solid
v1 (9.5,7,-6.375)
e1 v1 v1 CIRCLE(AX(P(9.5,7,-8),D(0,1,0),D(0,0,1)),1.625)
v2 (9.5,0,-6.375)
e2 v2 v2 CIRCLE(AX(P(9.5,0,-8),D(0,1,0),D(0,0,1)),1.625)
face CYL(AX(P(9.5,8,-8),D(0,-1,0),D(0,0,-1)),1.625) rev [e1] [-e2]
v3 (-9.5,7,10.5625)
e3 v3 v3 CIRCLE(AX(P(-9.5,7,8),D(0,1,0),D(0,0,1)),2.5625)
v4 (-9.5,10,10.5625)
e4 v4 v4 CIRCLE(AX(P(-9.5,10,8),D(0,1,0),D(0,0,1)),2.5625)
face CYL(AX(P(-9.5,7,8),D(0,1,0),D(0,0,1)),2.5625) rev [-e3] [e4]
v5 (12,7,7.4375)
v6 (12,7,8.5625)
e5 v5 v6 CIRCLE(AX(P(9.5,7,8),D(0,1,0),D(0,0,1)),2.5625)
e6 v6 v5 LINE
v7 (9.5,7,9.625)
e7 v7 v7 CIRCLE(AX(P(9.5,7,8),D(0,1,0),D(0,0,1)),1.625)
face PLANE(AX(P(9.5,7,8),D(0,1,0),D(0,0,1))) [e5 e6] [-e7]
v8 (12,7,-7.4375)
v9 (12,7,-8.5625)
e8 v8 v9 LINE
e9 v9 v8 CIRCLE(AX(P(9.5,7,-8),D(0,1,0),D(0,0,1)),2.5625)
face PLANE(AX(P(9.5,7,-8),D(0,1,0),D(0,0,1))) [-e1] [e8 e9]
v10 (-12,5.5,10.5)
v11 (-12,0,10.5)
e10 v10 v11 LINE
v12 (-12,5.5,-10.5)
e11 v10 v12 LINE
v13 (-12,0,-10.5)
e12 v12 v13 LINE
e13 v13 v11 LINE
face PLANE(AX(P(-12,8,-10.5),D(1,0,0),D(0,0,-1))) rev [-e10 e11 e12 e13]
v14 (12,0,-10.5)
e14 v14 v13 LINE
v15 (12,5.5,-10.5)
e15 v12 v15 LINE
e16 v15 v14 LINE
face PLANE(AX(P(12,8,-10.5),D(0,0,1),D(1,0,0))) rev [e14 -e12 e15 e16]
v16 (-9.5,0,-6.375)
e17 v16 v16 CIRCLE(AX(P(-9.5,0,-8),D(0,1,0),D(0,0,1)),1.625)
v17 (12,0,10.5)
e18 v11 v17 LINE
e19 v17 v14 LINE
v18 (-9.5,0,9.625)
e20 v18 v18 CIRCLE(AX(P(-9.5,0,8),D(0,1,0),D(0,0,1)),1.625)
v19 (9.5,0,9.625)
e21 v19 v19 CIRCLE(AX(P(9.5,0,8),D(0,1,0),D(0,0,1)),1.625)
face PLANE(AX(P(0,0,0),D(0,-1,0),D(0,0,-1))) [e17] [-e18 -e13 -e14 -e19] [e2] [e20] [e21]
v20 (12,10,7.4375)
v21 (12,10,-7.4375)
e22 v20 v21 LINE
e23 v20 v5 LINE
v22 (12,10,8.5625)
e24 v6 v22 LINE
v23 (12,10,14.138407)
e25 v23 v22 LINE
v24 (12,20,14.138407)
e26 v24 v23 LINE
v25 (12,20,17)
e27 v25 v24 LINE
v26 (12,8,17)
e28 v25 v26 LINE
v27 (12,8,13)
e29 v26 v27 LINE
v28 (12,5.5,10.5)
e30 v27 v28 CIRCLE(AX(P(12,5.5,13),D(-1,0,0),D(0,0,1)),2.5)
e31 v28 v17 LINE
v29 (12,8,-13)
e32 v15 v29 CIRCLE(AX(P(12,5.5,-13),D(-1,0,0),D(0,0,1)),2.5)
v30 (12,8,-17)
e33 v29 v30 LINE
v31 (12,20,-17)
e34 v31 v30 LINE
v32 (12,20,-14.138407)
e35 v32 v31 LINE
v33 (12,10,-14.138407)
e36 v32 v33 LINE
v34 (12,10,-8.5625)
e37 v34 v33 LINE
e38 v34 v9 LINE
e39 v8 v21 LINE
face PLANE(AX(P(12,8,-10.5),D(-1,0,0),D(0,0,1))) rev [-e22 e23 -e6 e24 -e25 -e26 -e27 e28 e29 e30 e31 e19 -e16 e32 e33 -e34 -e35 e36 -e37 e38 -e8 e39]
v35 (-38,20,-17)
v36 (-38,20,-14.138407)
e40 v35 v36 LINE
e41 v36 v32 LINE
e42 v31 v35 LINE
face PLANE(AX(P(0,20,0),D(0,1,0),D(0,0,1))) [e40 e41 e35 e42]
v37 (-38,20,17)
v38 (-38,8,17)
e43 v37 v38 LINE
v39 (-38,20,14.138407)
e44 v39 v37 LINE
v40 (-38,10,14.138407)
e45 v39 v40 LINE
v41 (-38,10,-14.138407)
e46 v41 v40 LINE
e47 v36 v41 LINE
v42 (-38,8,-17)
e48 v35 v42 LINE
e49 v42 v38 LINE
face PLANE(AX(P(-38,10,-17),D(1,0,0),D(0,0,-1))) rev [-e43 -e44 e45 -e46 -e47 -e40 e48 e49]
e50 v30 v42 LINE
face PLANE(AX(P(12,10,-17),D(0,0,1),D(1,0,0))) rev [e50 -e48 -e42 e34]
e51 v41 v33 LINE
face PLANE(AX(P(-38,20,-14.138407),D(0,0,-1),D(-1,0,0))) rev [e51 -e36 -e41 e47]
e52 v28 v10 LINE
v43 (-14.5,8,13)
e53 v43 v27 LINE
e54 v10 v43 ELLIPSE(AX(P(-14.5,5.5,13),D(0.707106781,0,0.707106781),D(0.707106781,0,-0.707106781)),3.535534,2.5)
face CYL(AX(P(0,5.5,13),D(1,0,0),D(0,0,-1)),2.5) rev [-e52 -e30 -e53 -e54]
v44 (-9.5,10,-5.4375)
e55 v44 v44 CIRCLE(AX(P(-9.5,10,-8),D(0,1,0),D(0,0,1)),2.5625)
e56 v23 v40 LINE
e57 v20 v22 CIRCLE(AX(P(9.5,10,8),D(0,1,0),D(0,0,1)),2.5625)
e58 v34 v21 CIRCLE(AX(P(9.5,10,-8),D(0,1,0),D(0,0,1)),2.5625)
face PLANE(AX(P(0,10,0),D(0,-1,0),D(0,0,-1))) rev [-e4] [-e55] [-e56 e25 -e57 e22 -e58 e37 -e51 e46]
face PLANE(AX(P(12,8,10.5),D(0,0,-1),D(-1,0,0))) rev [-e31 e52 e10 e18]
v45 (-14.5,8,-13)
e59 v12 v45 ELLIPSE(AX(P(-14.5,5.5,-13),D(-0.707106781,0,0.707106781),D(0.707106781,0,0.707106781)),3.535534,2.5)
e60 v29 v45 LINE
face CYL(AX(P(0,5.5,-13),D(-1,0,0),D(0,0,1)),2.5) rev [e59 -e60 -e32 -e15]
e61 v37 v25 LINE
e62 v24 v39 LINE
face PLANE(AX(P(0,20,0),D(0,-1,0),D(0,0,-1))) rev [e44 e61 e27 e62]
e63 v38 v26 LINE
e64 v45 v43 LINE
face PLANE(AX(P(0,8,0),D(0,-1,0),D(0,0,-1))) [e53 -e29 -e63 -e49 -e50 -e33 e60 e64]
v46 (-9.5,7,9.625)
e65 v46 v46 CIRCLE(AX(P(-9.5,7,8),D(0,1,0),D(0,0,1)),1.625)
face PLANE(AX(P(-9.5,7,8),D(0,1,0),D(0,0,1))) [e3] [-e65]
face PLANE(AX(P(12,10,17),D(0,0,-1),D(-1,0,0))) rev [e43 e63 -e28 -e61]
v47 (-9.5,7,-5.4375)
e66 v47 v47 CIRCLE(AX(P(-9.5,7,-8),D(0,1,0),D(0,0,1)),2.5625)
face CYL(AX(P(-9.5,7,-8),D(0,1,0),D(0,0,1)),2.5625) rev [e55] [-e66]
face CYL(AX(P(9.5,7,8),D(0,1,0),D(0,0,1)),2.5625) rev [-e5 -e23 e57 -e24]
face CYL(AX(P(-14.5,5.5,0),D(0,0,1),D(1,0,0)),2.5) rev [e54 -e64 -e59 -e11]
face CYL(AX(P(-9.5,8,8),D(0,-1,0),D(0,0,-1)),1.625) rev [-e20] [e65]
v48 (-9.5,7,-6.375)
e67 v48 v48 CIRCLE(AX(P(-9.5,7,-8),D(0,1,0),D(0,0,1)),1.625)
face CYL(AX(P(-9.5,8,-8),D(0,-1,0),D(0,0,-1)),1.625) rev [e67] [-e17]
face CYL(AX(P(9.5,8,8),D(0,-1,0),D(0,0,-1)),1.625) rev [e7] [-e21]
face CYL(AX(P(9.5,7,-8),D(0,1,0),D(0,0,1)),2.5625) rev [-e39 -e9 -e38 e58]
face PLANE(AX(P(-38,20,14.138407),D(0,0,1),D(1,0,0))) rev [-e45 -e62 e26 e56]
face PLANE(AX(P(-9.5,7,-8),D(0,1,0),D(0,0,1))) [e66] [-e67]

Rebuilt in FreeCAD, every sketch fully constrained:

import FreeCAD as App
import Part
import Sketcher

V = App.Vector
Q = App.Units.Quantity


def edges_at(feature, points):
    """Names of the edges that pass closest to the given points."""
    edges = feature.Shape.Edges
    near = lambda p: min(range(len(edges)), key=lambda i: edges[i].distToShape(Part.Vertex(*p))[0])
    return sorted({f"Edge{near(p) + 1}" for p in points})


def add_polygon(sketch, points):
    """Adds a closed chain of lines whose ends are joined by coincident constraints."""
    first, n = sketch.GeometryCount, len(points)
    for a, b in zip(points, points[1:] + points[:1]):
        sketch.addGeometry(Part.LineSegment(App.Vector(*a, 0), App.Vector(*b, 0)), False)
    for i in range(n):
        sketch.addConstraint(Sketcher.Constraint("Coincident", first + i, 2, first + (i + 1) % n, 1))

doc = App.newDocument("Part")
body = doc.addObject("PartDesign::Body", "Body")

# Sketch on XZ plane
sketch1 = body.newObject("Sketcher::SketchObject", "Sketch")
sketch1.AttachmentSupport = (doc.getObject("XZ_Plane"), [""])
sketch1.MapMode = "FlatFace"
add_polygon(sketch1, [(-12, -10.5), (-12, 10.5), (12, 10.5), (12, -10.5)])  # lines 0-3
sketch1.addGeometry(Part.Circle(V(-9.5, 8, 0), V(0, 0, 1), 1.6), False)  # 4
sketch1.addGeometry(Part.Circle(V(9.5, 8, 0), V(0, 0, 1), 1.6), False)  # 5
sketch1.addGeometry(Part.Circle(V(-9.5, -8, 0), V(0, 0, 1), 1.6), False)  # 6
sketch1.addGeometry(Part.Circle(V(9.5, -8, 0), V(0, 0, 1), 1.6), False)  # 7
sketch1.addConstraint(Sketcher.Constraint("Vertical", 0))
sketch1.addConstraint(Sketcher.Constraint("Horizontal", 1))
sketch1.addConstraint(Sketcher.Constraint("Vertical", 2))
sketch1.addConstraint(Sketcher.Constraint("Horizontal", 3))
sketch1.addConstraint(Sketcher.Constraint("Equal", 4, 5))
sketch1.addConstraint(Sketcher.Constraint("Equal", 5, 6))
sketch1.addConstraint(Sketcher.Constraint("Equal", 6, 7))
sketch1.addConstraint(Sketcher.Constraint("Symmetric", 5, 3, 6, 3, -1, 1))
sketch1.addConstraint(Sketcher.Constraint("Symmetric", 4, 3, 7, 3, -1, 1))
sketch1.addConstraint(Sketcher.Constraint("Symmetric", 0, 2, 2, 2, -1, 1))
sketch1.addConstraint(Sketcher.Constraint("Symmetric", 4, 3, 5, 3, -2))
sketch1.addConstraint(Sketcher.Constraint("Diameter", 4, Q("3.25 mm")))
sketch1.addConstraint(Sketcher.Constraint("DistanceX", 1, 1, 1, 2, Q("24 mm")))
sketch1.addConstraint(Sketcher.Constraint("DistanceY", 0, 1, 0, 2, Q("21 mm")))
sketch1.addConstraint(Sketcher.Constraint("DistanceY", -1, 1, 4, 3, Q("8 mm")))
sketch1.addConstraint(Sketcher.Constraint("DistanceX", 4, 3, 5, 3, Q("19 mm")))
pad1 = body.newObject("PartDesign::Pad", "Pad")
pad1.Profile = sketch1
pad1.Length = 8
pad1.Reversed = True

# Sketch on XZ plane
sketch2 = body.newObject("Sketcher::SketchObject", "Sketch001")
sketch2.AttachmentSupport = (doc.getObject("XZ_Plane"), [""])
sketch2.MapMode = "FlatFace"
sketch2.AttachmentOffset = App.Placement(V(0, 0, -8), App.Rotation())
add_polygon(sketch2, [(-38, -17), (-38, 17), (12, 17), (12, -17)])  # lines 0-3
sketch2.addGeometry(Part.Circle(V(-9.5, 8, 0), V(0, 0, 1), 1.6), False)  # 4
sketch2.addGeometry(Part.Circle(V(9.5, 8, 0), V(0, 0, 1), 1.6), False)  # 5
sketch2.addGeometry(Part.Circle(V(-9.5, -8, 0), V(0, 0, 1), 1.6), False)  # 6
sketch2.addGeometry(Part.Circle(V(9.5, -8, 0), V(0, 0, 1), 1.6), False)  # 7
sketch2.addConstraint(Sketcher.Constraint("Vertical", 0))
sketch2.addConstraint(Sketcher.Constraint("Horizontal", 1))
sketch2.addConstraint(Sketcher.Constraint("Vertical", 2))
sketch2.addConstraint(Sketcher.Constraint("Horizontal", 3))
sketch2.addConstraint(Sketcher.Constraint("Equal", 4, 5))
sketch2.addConstraint(Sketcher.Constraint("Equal", 5, 6))
sketch2.addConstraint(Sketcher.Constraint("Equal", 6, 7))
sketch2.addConstraint(Sketcher.Constraint("Symmetric", 5, 3, 6, 3, -1, 1))
sketch2.addConstraint(Sketcher.Constraint("Symmetric", 4, 3, 7, 3, -1, 1))
sketch2.addConstraint(Sketcher.Constraint("Symmetric", 4, 3, 5, 3, -2))
sketch2.addConstraint(Sketcher.Constraint("Diameter", 4, Q("3.25 mm")))
sketch2.addConstraint(Sketcher.Constraint("DistanceX", 1, 1, 1, 2, Q("50 mm")))
sketch2.addConstraint(Sketcher.Constraint("DistanceY", 0, 1, 0, 2, Q("34 mm")))
sketch2.addConstraint(Sketcher.Constraint("DistanceY", -1, 1, 4, 3, Q("8 mm")))
sketch2.addConstraint(Sketcher.Constraint("DistanceX", 0, 2, -1, 1, Q("38 mm")))
sketch2.addConstraint(Sketcher.Constraint("DistanceY", -1, 1, 0, 2, Q("17 mm")))
sketch2.addConstraint(Sketcher.Constraint("DistanceX", 4, 3, 5, 3, Q("19 mm")))
pad2 = body.newObject("PartDesign::Pad", "Pad001")
pad2.Profile = sketch2
pad2.Length = 2
pad2.Reversed = True
doc.recompute()

fillet = body.newObject("PartDesign::Fillet", "Fillet")
fillet.Base = (pad2, edges_at(pad2, [(0, 8, -10.5), (-12, 8, 0), (0, 8, 10.5)]))
fillet.Radius = 2.5

# Sketch on XZ plane
sketch3 = body.newObject("Sketcher::SketchObject", "Sketch002")
sketch3.AttachmentSupport = (doc.getObject("XZ_Plane"), [""])
sketch3.MapMode = "FlatFace"
sketch3.AttachmentOffset = App.Placement(V(0, 0, -10), App.Rotation())
add_polygon(sketch3, [(-38, -17), (-38, -14.1), (12, -14.1), (12, -17)])  # lines 0-3
add_polygon(sketch3, [(-38, 14.1), (-38, 17), (12, 17), (12, 14.1)])  # lines 4-7
sketch3.addConstraint(Sketcher.Constraint("Vertical", 0))
sketch3.addConstraint(Sketcher.Constraint("Horizontal", 1))
sketch3.addConstraint(Sketcher.Constraint("Vertical", 2))
sketch3.addConstraint(Sketcher.Constraint("Horizontal", 3))
sketch3.addConstraint(Sketcher.Constraint("Vertical", 4))
sketch3.addConstraint(Sketcher.Constraint("Horizontal", 5))
sketch3.addConstraint(Sketcher.Constraint("Vertical", 6))
sketch3.addConstraint(Sketcher.Constraint("Horizontal", 7))
sketch3.addConstraint(Sketcher.Constraint("Symmetric", 3, 2, 4, 2, -1))
sketch3.addConstraint(Sketcher.Constraint("Symmetric", 1, 2, 6, 2, -1))
sketch3.addConstraint(Sketcher.Constraint("DistanceX", 1, 1, 1, 2, Q("50 mm")))
sketch3.addConstraint(Sketcher.Constraint("DistanceX", 0, 2, -1, 1, Q("38 mm")))
sketch3.addConstraint(Sketcher.Constraint("DistanceY", 2, 2, -1, 1, Q("17 mm")))
sketch3.addConstraint(Sketcher.Constraint("DistanceY", 0, 1, 0, 2, Q("2.861593 mm")))
pad3 = body.newObject("PartDesign::Pad", "Pad002")
pad3.Profile = sketch3
pad3.Length = 10
pad3.Reversed = True

# Sketch on XZ plane
sketch4 = body.newObject("Sketcher::SketchObject", "Sketch003")
sketch4.AttachmentSupport = (doc.getObject("XZ_Plane"), [""])
sketch4.MapMode = "FlatFace"
sketch4.AttachmentOffset = App.Placement(V(0, 0, -10), App.Rotation())
sketch4.addGeometry(Part.Circle(V(-9.5, -8, 0), V(0, 0, 1), 2.6), False)
sketch4.addGeometry(Part.Circle(V(9.5, -8, 0), V(0, 0, 1), 2.6), False)
sketch4.addGeometry(Part.Circle(V(9.5, 8, 0), V(0, 0, 1), 2.6), False)
sketch4.addGeometry(Part.Circle(V(-9.5, 8, 0), V(0, 0, 1), 2.6), False)
sketch4.addConstraint(Sketcher.Constraint("Equal", 0, 1))
sketch4.addConstraint(Sketcher.Constraint("Equal", 1, 2))
sketch4.addConstraint(Sketcher.Constraint("Equal", 2, 3))
sketch4.addConstraint(Sketcher.Constraint("Symmetric", 0, 3, 2, 3, -1, 1))
sketch4.addConstraint(Sketcher.Constraint("Symmetric", 1, 3, 3, 3, -1, 1))
sketch4.addConstraint(Sketcher.Constraint("Symmetric", 0, 3, 1, 3, -2))
sketch4.addConstraint(Sketcher.Constraint("Diameter", 0, Q("5.125 mm")))
sketch4.addConstraint(Sketcher.Constraint("DistanceY", 0, 3, -1, 1, Q("8 mm")))
sketch4.addConstraint(Sketcher.Constraint("DistanceX", 0, 3, 1, 3, Q("19 mm")))
pocket1 = body.newObject("PartDesign::Pocket", "Pocket")
pocket1.Profile = sketch4
pocket1.Length = 3
pocket1.Reversed = True

doc.recompute()
